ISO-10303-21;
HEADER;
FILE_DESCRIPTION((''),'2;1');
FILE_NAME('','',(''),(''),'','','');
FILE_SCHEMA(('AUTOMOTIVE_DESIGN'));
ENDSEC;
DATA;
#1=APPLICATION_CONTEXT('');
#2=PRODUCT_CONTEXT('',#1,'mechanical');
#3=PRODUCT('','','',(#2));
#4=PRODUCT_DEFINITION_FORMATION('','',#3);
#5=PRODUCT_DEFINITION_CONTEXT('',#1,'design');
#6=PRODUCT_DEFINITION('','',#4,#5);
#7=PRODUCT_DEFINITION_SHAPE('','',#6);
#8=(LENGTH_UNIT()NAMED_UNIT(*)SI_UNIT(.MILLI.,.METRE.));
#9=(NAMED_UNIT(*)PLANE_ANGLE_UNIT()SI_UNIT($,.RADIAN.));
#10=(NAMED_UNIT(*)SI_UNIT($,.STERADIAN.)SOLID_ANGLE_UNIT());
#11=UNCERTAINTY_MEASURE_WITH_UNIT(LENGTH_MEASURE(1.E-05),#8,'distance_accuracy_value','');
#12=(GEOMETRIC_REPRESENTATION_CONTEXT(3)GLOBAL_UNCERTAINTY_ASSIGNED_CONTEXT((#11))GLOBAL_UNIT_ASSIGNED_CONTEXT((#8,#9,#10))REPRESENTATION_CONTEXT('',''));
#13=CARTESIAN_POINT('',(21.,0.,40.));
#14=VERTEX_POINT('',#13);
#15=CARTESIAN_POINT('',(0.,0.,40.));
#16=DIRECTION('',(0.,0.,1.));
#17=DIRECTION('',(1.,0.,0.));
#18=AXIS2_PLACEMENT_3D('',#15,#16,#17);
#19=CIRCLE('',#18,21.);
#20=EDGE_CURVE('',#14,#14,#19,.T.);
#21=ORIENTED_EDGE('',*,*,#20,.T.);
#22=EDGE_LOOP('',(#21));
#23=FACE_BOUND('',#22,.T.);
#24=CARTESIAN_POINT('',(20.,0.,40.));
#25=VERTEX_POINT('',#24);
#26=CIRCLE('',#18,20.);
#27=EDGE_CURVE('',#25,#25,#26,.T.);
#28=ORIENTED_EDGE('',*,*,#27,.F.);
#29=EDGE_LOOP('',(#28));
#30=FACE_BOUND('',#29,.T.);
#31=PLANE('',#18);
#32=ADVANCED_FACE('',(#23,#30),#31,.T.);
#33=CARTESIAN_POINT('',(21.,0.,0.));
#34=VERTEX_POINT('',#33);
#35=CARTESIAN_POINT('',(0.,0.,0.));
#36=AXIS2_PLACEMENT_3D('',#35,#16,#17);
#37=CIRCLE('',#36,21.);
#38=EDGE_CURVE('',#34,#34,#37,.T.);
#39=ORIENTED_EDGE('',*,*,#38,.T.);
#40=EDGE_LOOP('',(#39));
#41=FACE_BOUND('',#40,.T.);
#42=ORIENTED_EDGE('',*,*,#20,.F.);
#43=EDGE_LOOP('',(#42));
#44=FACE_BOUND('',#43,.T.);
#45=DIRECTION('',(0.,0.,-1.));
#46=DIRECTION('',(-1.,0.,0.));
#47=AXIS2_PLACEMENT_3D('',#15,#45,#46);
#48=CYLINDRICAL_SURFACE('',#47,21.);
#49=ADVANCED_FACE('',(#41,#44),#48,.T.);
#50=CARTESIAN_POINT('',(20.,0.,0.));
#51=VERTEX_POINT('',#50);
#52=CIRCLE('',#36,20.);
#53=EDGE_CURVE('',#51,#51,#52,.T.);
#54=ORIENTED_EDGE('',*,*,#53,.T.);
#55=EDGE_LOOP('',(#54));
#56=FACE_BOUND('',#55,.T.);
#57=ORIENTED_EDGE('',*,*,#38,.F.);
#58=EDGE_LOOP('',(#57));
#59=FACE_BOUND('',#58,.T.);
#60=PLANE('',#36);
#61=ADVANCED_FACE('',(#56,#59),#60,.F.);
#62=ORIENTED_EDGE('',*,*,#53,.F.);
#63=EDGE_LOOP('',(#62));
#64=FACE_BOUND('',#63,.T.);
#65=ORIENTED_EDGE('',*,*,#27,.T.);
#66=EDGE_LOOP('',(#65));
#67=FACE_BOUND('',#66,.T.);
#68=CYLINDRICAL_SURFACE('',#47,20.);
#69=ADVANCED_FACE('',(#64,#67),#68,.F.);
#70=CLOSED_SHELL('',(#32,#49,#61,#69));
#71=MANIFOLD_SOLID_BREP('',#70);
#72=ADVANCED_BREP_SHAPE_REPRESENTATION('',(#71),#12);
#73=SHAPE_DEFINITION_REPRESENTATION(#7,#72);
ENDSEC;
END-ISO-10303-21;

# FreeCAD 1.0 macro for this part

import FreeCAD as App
import Part
import Sketcher
from FreeCAD import Vector
Q = App.Units.Quantity

doc = App.newDocument("Part")
body = doc.addObject("PartDesign::Body", "Body")

# Sketch on XY plane
sketch1 = doc.addObject("Sketcher::SketchObject", "Sketch")
body.addObject(sketch1)
sketch1.AttachmentSupport = (doc.XY_Plane, [""])
sketch1.MapMode = "FlatFace"
sketch1.addGeometry([
    Part.Circle(Vector(0, 0, 0), Vector(0, 0, 1), 21),
    Part.Circle(Vector(0, 0, 0), Vector(0, 0, 1), 20),
], False)
sketch1.addConstraint([
    Sketcher.Constraint("Coincident", 0, 3, -1, 1),
    Sketcher.Constraint("Coincident", 1, 3, -1, 1),
    Sketcher.Constraint("Diameter", 0, Q("42 mm")),
    Sketcher.Constraint("Diameter", 1, Q("40 mm")),
])
pad1 = doc.addObject("PartDesign::Pad", "Pad")
body.addObject(pad1)
pad1.Profile = sketch1
pad1.Length = 40

doc.recompute()
